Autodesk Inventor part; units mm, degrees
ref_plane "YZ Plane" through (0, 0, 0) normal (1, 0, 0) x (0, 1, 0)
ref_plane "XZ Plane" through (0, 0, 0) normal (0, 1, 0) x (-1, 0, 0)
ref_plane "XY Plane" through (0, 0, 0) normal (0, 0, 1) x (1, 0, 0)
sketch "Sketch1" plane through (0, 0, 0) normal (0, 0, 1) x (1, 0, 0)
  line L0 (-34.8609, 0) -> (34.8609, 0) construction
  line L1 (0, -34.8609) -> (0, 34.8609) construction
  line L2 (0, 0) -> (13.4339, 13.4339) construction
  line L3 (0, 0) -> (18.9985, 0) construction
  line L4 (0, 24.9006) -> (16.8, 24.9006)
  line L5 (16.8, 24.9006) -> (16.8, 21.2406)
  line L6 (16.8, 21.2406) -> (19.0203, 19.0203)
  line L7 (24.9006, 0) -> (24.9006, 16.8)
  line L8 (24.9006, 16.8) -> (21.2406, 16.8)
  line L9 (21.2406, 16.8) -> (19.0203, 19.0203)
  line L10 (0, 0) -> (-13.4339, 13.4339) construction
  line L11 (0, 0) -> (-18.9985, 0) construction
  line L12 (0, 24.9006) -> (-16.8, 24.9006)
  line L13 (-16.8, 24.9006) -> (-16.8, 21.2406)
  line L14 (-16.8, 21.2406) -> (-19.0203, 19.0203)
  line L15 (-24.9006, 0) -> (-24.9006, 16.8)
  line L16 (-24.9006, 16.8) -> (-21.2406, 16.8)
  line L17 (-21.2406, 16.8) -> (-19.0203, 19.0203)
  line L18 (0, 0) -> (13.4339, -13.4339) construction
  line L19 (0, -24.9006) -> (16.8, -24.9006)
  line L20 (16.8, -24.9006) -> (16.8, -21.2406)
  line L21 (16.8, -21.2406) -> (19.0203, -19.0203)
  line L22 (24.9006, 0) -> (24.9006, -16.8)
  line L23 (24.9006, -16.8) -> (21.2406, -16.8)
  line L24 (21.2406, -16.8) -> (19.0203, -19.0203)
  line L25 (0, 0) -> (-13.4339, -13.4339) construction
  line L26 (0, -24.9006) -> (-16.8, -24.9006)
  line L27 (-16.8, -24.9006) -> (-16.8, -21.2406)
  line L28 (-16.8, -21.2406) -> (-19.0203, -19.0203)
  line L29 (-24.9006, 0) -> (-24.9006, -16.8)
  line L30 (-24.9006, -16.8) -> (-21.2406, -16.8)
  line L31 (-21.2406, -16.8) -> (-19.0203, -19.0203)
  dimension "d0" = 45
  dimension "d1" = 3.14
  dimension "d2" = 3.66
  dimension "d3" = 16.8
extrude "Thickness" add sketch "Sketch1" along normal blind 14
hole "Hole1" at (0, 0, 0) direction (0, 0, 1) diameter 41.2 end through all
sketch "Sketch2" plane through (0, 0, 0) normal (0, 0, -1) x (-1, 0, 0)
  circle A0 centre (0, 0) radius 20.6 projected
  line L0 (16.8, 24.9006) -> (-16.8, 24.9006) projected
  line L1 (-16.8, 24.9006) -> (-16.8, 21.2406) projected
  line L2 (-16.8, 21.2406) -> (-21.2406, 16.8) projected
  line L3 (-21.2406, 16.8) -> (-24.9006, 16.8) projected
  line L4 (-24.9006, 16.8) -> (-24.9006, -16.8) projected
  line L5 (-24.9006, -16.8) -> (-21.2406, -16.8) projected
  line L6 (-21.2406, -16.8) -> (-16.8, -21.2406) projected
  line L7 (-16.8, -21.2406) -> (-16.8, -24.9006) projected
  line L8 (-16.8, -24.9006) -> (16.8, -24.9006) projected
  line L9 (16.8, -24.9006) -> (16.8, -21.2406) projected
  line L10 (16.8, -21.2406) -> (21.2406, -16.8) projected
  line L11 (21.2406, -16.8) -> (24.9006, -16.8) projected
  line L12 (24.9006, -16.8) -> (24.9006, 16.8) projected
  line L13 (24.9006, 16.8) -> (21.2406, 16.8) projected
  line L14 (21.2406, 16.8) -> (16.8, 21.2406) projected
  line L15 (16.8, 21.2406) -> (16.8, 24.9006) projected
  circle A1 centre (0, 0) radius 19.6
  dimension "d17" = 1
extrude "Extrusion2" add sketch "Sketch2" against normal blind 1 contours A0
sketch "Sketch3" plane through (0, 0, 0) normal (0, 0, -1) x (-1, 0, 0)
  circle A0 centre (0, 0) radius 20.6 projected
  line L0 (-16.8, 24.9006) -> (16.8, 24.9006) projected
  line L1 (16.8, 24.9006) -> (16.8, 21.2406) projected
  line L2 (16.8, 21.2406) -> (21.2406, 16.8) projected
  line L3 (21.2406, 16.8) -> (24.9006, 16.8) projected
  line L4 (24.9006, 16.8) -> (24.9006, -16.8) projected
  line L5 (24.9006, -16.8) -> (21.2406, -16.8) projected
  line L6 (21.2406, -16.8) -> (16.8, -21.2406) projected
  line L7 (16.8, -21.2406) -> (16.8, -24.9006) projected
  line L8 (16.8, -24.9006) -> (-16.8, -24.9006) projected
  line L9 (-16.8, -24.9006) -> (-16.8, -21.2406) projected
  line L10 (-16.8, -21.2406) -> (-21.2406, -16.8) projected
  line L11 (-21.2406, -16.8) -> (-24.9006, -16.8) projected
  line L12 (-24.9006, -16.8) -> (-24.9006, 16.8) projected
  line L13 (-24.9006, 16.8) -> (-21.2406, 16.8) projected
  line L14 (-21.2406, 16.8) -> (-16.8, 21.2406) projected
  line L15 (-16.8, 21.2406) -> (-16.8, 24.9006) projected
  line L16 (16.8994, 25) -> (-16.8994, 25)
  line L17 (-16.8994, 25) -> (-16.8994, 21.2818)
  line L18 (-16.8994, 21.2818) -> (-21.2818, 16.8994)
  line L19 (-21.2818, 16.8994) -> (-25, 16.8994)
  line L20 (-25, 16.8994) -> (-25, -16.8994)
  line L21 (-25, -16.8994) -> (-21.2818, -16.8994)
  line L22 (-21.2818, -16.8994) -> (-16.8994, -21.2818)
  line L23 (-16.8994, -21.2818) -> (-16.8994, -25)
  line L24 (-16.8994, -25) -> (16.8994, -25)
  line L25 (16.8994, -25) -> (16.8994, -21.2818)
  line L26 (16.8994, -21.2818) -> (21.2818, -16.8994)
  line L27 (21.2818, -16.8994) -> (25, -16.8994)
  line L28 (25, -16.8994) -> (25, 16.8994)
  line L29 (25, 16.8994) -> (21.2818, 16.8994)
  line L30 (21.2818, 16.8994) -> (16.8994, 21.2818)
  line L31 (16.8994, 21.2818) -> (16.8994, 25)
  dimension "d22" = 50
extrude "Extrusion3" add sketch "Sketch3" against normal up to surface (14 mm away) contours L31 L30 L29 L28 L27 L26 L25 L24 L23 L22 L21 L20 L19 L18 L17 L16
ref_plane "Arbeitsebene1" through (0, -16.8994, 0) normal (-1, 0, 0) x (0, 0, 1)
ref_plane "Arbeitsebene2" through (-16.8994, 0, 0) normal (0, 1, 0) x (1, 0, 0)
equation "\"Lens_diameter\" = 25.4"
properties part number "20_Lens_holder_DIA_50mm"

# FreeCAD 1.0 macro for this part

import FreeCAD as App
import Part
import Sketcher

doc = App.newDocument("Part")
params = doc.addObject("Spreadsheet::Sheet", "Params")
for row, (alias, value) in enumerate([
    ("sketch1_width", "3.66 mm"),
    ("sketch1_length", "6.28 mm"),
    ("pad1_length", "14 mm"),
    ("sketch2_diameter", "41.2 mm"),
    ("hole_diameter", "41.2 mm"),
    ("sketch3_diameter", "41.2 mm"),
    ("sketch3_diameter2", "39.2 mm"),
    ("pad2_length", "1 mm"),
    ("sketch4_width", "33.6 mm"),
    ("sketch4_width2", "3.66 mm"),
    ("sketch4_length", "6.28 mm"),
    ("pad3_length", "14 mm"),
], start=1):
    params.set(f"A{row}", alias)
    params.set(f"B{row}", "=" + value)
    params.setAlias(f"B{row}", alias)

body = doc.addObject("PartDesign::Body", "Body")

# Sketch on XY plane
sketch1 = body.newObject("Sketcher::SketchObject", "Sketch")
sketch1.AttachmentSupport = (doc.getObject("XY_Plane"), [""])
sketch1.MapMode = "FlatFace"
sketch1.addGeometry(Part.LineSegment(App.Vector(16.8, 24.9, 0), App.Vector(-16.8, 24.9, 0)), False)
sketch1.addGeometry(Part.LineSegment(App.Vector(-16.8, 24.9, 0), App.Vector(-16.8, 21.2, 0)), False)
sketch1.addGeometry(Part.LineSegment(App.Vector(-16.8, 21.2, 0), App.Vector(-21.2, 16.8, 0)), False)
sketch1.addGeometry(Part.LineSegment(App.Vector(-21.2, 16.8, 0), App.Vector(-24.9, 16.8, 0)), False)
sketch1.addGeometry(Part.LineSegment(App.Vector(-24.9, 16.8, 0), App.Vector(-24.9, -16.8, 0)), False)
sketch1.addGeometry(Part.LineSegment(App.Vector(-24.9, -16.8, 0), App.Vector(-21.2, -16.8, 0)), False)
sketch1.addGeometry(Part.LineSegment(App.Vector(-21.2, -16.8, 0), App.Vector(-16.8, -21.2, 0)), False)
sketch1.addGeometry(Part.LineSegment(App.Vector(-16.8, -21.2, 0), App.Vector(-16.8, -24.9, 0)), False)
sketch1.addGeometry(Part.LineSegment(App.Vector(-16.8, -24.9, 0), App.Vector(16.8, -24.9, 0)), False)
sketch1.addGeometry(Part.LineSegment(App.Vector(16.8, -24.9, 0), App.Vector(16.8, -21.2, 0)), False)
sketch1.addGeometry(Part.LineSegment(App.Vector(16.8, -21.2, 0), App.Vector(21.2, -16.8, 0)), False)
sketch1.addGeometry(Part.LineSegment(App.Vector(21.2, -16.8, 0), App.Vector(24.9, -16.8, 0)), False)
sketch1.addGeometry(Part.LineSegment(App.Vector(24.9, -16.8, 0), App.Vector(24.9, 16.8, 0)), False)
sketch1.addGeometry(Part.LineSegment(App.Vector(24.9, 16.8, 0), App.Vector(21.2, 16.8, 0)), False)
sketch1.addGeometry(Part.LineSegment(App.Vector(21.2, 16.8, 0), App.Vector(16.8, 21.2, 0)), False)
sketch1.addGeometry(Part.LineSegment(App.Vector(16.8, 21.2, 0), App.Vector(16.8, 24.9, 0)), False)
sketch1.addConstraint(Sketcher.Constraint("Coincident", 0, 2, 1, 1))
sketch1.addConstraint(Sketcher.Constraint("Coincident", 1, 2, 2, 1))
sketch1.addConstraint(Sketcher.Constraint("Coincident", 2, 2, 3, 1))
sketch1.addConstraint(Sketcher.Constraint("Coincident", 3, 2, 4, 1))
sketch1.addConstraint(Sketcher.Constraint("Coincident", 4, 2, 5, 1))
sketch1.addConstraint(Sketcher.Constraint("Coincident", 5, 2, 6, 1))
sketch1.addConstraint(Sketcher.Constraint("Coincident", 6, 2, 7, 1))
sketch1.addConstraint(Sketcher.Constraint("Coincident", 7, 2, 8, 1))
sketch1.addConstraint(Sketcher.Constraint("Coincident", 8, 2, 9, 1))
sketch1.addConstraint(Sketcher.Constraint("Coincident", 9, 2, 10, 1))
sketch1.addConstraint(Sketcher.Constraint("Coincident", 10, 2, 11, 1))
sketch1.addConstraint(Sketcher.Constraint("Coincident", 11, 2, 12, 1))
sketch1.addConstraint(Sketcher.Constraint("Coincident", 12, 2, 13, 1))
sketch1.addConstraint(Sketcher.Constraint("Coincident", 13, 2, 14, 1))
sketch1.addConstraint(Sketcher.Constraint("Coincident", 14, 2, 15, 1))
sketch1.addConstraint(Sketcher.Constraint("Coincident", 15, 2, 0, 1))
sketch1.addConstraint(Sketcher.Constraint("Horizontal", 0))
sketch1.addConstraint(Sketcher.Constraint("Vertical", 1))
sketch1.addConstraint(Sketcher.Constraint("Horizontal", 3))
sketch1.addConstraint(Sketcher.Constraint("Vertical", 4))
sketch1.addConstraint(Sketcher.Constraint("Horizontal", 5))
sketch1.addConstraint(Sketcher.Constraint("Vertical", 7))
sketch1.addConstraint(Sketcher.Constraint("Horizontal", 8))
sketch1.addConstraint(Sketcher.Constraint("Vertical", 9))
sketch1.addConstraint(Sketcher.Constraint("Horizontal", 11))
sketch1.addConstraint(Sketcher.Constraint("Vertical", 12))
sketch1.addConstraint(Sketcher.Constraint("Horizontal", 13))
sketch1.addConstraint(Sketcher.Constraint("Vertical", 15))
sketch1.addConstraint(Sketcher.Constraint("Symmetric", 0, 2, 8, 2, -1, 1))
sketch1.addConstraint(Sketcher.Constraint("Symmetric", 2, 2, 10, 2, -1, 1))
sketch1.addConstraint(Sketcher.Constraint("Symmetric", 4, 2, 12, 2, -1, 1))
sketch1.addConstraint(Sketcher.Constraint("Symmetric", 6, 2, 14, 2, -1, 1))
sketch1.addConstraint(Sketcher.Constraint("Symmetric", 6, 2, 9, 2, -2))
sketch1.addConstraint(Sketcher.Constraint("Symmetric", 5, 2, 10, 2, -2))
sketch1.addConstraint(Sketcher.Constraint("Perpendicular", 2, 6))
sketch1.addConstraint(Sketcher.Constraint("Perpendicular", 6, 10))
sketch1.addConstraint(Sketcher.Constraint("Perpendicular", 10, 14))
sketch1.addConstraint(Sketcher.Constraint("Equal", 13, 1))
sketch1.addConstraint(Sketcher.Constraint("Equal", 8, 4))
sketch1.addConstraint(Sketcher.Constraint("DistanceX", 3, 2, 3, 1, 3.66))
sketch1.addConstraint(Sketcher.Constraint("DistanceX", 0, 2, -1, 1, 16.8))
sketch1.addConstraint(Sketcher.Constraint("Distance", 2, 6.28))
sketch1.setExpression("Constraints[39]", "Params.sketch1_width")
sketch1.setExpression("Constraints[41]", "Params.sketch1_length")
pad1 = body.newObject("PartDesign::Pad", "Pad")
pad1.Profile = sketch1
pad1.setExpression("Length", "Params.pad1_length")

# Sketch on XY plane
sketch2 = body.newObject("Sketcher::SketchObject", "Sketch001")
sketch2.AttachmentSupport = (doc.getObject("XY_Plane"), [""])
sketch2.MapMode = "FlatFace"
sketch2.addGeometry(Part.Circle(App.Vector(0, 0, 0), App.Vector(0, 0, 1), 21), False)
sketch2.addConstraint(Sketcher.Constraint("Coincident", 0, 3, -1, 1))
sketch2.addConstraint(Sketcher.Constraint("Diameter", 0, 41.2))
sketch2.setExpression("Constraints[1]", "Params.sketch2_diameter")
doc.recompute()
hole = body.newObject("PartDesign::Hole", "Hole")
hole.Profile = sketch2
hole.ThreadType = "None"
hole.setExpression("Diameter", "Params.hole_diameter")
hole.DepthType = "ThroughAll"
hole.Reversed = True

# Sketch on XY plane
sketch3 = body.newObject("Sketcher::SketchObject", "Sketch002")
sketch3.AttachmentSupport = (doc.getObject("XY_Plane"), [""])
sketch3.MapMode = "FlatFace"
sketch3.addGeometry(Part.Circle(App.Vector(0, 0, 0), App.Vector(0, 0, 1), 21), False)
sketch3.addGeometry(Part.Circle(App.Vector(0, 0, 0), App.Vector(0, 0, 1), 20), False)
sketch3.addConstraint(Sketcher.Constraint("Coincident", 0, 3, -1, 1))
sketch3.addConstraint(Sketcher.Constraint("Coincident", 1, 3, -1, 1))
sketch3.addConstraint(Sketcher.Constraint("Diameter", 0, 41.2))
sketch3.addConstraint(Sketcher.Constraint("Diameter", 1, 39.2))
sketch3.setExpression("Constraints[2]", "Params.sketch3_diameter")
sketch3.setExpression("Constraints[3]", "Params.sketch3_diameter2")
pad2 = body.newObject("PartDesign::Pad", "Pad001")
pad2.Profile = sketch3
pad2.setExpression("Length", "Params.pad2_length")

# Sketch on XY plane
sketch4 = body.newObject("Sketcher::SketchObject", "Sketch003")
sketch4.AttachmentSupport = (doc.getObject("XY_Plane"), [""])
sketch4.MapMode = "FlatFace"
sketch4.addGeometry(Part.LineSegment(App.Vector(-16.9, 21.3, 0), App.Vector(-16.9, 25, 0)), False)
sketch4.addGeometry(Part.LineSegment(App.Vector(-16.9, 25, 0), App.Vector(16.9, 25, 0)), False)
sketch4.addGeometry(Part.LineSegment(App.Vector(16.9, 25, 0), App.Vector(16.9, 21.3, 0)), False)
sketch4.addGeometry(Part.LineSegment(App.Vector(16.9, 21.3, 0), App.Vector(21.3, 16.9, 0)), False)
sketch4.addGeometry(Part.LineSegment(App.Vector(21.3, 16.9, 0), App.Vector(25, 16.9, 0)), False)
sketch4.addGeometry(Part.LineSegment(App.Vector(25, 16.9, 0), App.Vector(25, -16.9, 0)), False)
sketch4.addGeometry(Part.LineSegment(App.Vector(25, -16.9, 0), App.Vector(21.3, -16.9, 0)), False)
sketch4.addGeometry(Part.LineSegment(App.Vector(21.3, -16.9, 0), App.Vector(16.9, -21.3, 0)), False)
sketch4.addGeometry(Part.LineSegment(App.Vector(16.9, -21.3, 0), App.Vector(16.9, -25, 0)), False)
sketch4.addGeometry(Part.LineSegment(App.Vector(16.9, -25, 0), App.Vector(-16.9, -25, 0)), False)
sketch4.addGeometry(Part.LineSegment(App.Vector(-16.9, -25, 0), App.Vector(-16.9, -21.3, 0)), False)
sketch4.addGeometry(Part.LineSegment(App.Vector(-16.9, -21.3, 0), App.Vector(-21.3, -16.9, 0)), False)
sketch4.addGeometry(Part.LineSegment(App.Vector(-21.3, -16.9, 0), App.Vector(-25, -16.9, 0)), False)
sketch4.addGeometry(Part.LineSegment(App.Vector(-25, -16.9, 0), App.Vector(-25, 16.9, 0)), False)
sketch4.addGeometry(Part.LineSegment(App.Vector(-25, 16.9, 0), App.Vector(-21.3, 16.9, 0)), False)
sketch4.addGeometry(Part.LineSegment(App.Vector(-21.3, 16.9, 0), App.Vector(-16.9, 21.3, 0)), False)
sketch4.addGeometry(Part.LineSegment(App.Vector(16.8, 21.2, 0), App.Vector(16.8, 24.9, 0)), False)
sketch4.addGeometry(Part.LineSegment(App.Vector(16.8, 24.9, 0), App.Vector(-16.8, 24.9, 0)), False)
sketch4.addGeometry(Part.LineSegment(App.Vector(-16.8, 24.9, 0), App.Vector(-16.8, 21.2, 0)), False)
sketch4.addGeometry(Part.LineSegment(App.Vector(-16.8, 21.2, 0), App.Vector(-21.2, 16.8, 0)), False)
sketch4.addGeometry(Part.LineSegment(App.Vector(-21.2, 16.8, 0), App.Vector(-24.9, 16.8, 0)), False)
sketch4.addGeometry(Part.LineSegment(App.Vector(-24.9, 16.8, 0), App.Vector(-24.9, -16.8, 0)), False)
sketch4.addGeometry(Part.LineSegment(App.Vector(-24.9, -16.8, 0), App.Vector(-21.2, -16.8, 0)), False)
sketch4.addGeometry(Part.LineSegment(App.Vector(-21.2, -16.8, 0), App.Vector(-16.8, -21.2, 0)), False)
sketch4.addGeometry(Part.LineSegment(App.Vector(-16.8, -21.2, 0), App.Vector(-16.8, -24.9, 0)), False)
sketch4.addGeometry(Part.LineSegment(App.Vector(-16.8, -24.9, 0), App.Vector(16.8, -24.9, 0)), False)
sketch4.addGeometry(Part.LineSegment(App.Vector(16.8, -24.9, 0), App.Vector(16.8, -21.2, 0)), False)
sketch4.addGeometry(Part.LineSegment(App.Vector(16.8, -21.2, 0), App.Vector(21.2, -16.8, 0)), False)
sketch4.addGeometry(Part.LineSegment(App.Vector(21.2, -16.8, 0), App.Vector(24.9, -16.8, 0)), False)
sketch4.addGeometry(Part.LineSegment(App.Vector(24.9, -16.8, 0), App.Vector(24.9, 16.8, 0)), False)
sketch4.addGeometry(Part.LineSegment(App.Vector(24.9, 16.8, 0), App.Vector(21.2, 16.8, 0)), False)
sketch4.addGeometry(Part.LineSegment(App.Vector(21.2, 16.8, 0), App.Vector(16.8, 21.2, 0)), False)
sketch4.addConstraint(Sketcher.Constraint("Coincident", 0, 2, 1, 1))
sketch4.addConstraint(Sketcher.Constraint("Coincident", 1, 2, 2, 1))
sketch4.addConstraint(Sketcher.Constraint("Coincident", 2, 2, 3, 1))
sketch4.addConstraint(Sketcher.Constraint("Coincident", 3, 2, 4, 1))
sketch4.addConstraint(Sketcher.Constraint("Coincident", 4, 2, 5, 1))
sketch4.addConstraint(Sketcher.Constraint("Coincident", 5, 2, 6, 1))
sketch4.addConstraint(Sketcher.Constraint("Coincident", 6, 2, 7, 1))
sketch4.addConstraint(Sketcher.Constraint("Coincident", 7, 2, 8, 1))
sketch4.addConstraint(Sketcher.Constraint("Coincident", 8, 2, 9, 1))
sketch4.addConstraint(Sketcher.Constraint("Coincident", 9, 2, 10, 1))
sketch4.addConstraint(Sketcher.Constraint("Coincident", 10, 2, 11, 1))
sketch4.addConstraint(Sketcher.Constraint("Coincident", 11, 2, 12, 1))
sketch4.addConstraint(Sketcher.Constraint("Coincident", 12, 2, 13, 1))
sketch4.addConstraint(Sketcher.Constraint("Coincident", 13, 2, 14, 1))
sketch4.addConstraint(Sketcher.Constraint("Coincident", 14, 2, 15, 1))
sketch4.addConstraint(Sketcher.Constraint("Coincident", 15, 2, 0, 1))
sketch4.addConstraint(Sketcher.Constraint("Coincident", 16, 2, 17, 1))
sketch4.addConstraint(Sketcher.Constraint("Coincident", 17, 2, 18, 1))
sketch4.addConstraint(Sketcher.Constraint("Coincident", 18, 2, 19, 1))
sketch4.addConstraint(Sketcher.Constraint("Coincident", 19, 2, 20, 1))
sketch4.addConstraint(Sketcher.Constraint("Coincident", 20, 2, 21, 1))
sketch4.addConstraint(Sketcher.Constraint("Coincident", 21, 2, 22, 1))
sketch4.addConstraint(Sketcher.Constraint("Coincident", 22, 2, 23, 1))
sketch4.addConstraint(Sketcher.Constraint("Coincident", 23, 2, 24, 1))
sketch4.addConstraint(Sketcher.Constraint("Coincident", 24, 2, 25, 1))
sketch4.addConstraint(Sketcher.Constraint("Coincident", 25, 2, 26, 1))
sketch4.addConstraint(Sketcher.Constraint("Coincident", 26, 2, 27, 1))
sketch4.addConstraint(Sketcher.Constraint("Coincident", 27, 2, 28, 1))
sketch4.addConstraint(Sketcher.Constraint("Coincident", 28, 2, 29, 1))
sketch4.addConstraint(Sketcher.Constraint("Coincident", 29, 2, 30, 1))
sketch4.addConstraint(Sketcher.Constraint("Coincident", 30, 2, 31, 1))
sketch4.addConstraint(Sketcher.Constraint("Coincident", 31, 2, 16, 1))
sketch4.addConstraint(Sketcher.Constraint("Vertical", 0))
sketch4.addConstraint(Sketcher.Constraint("Horizontal", 1))
sketch4.addConstraint(Sketcher.Constraint("Vertical", 2))
sketch4.addConstraint(Sketcher.Constraint("Horizontal", 4))
sketch4.addConstraint(Sketcher.Constraint("Vertical", 5))
sketch4.addConstraint(Sketcher.Constraint("Horizontal", 6))
sketch4.addConstraint(Sketcher.Constraint("Vertical", 8))
sketch4.addConstraint(Sketcher.Constraint("Horizontal", 9))
sketch4.addConstraint(Sketcher.Constraint("Vertical", 10))
sketch4.addConstraint(Sketcher.Constraint("Horizontal", 12))
sketch4.addConstraint(Sketcher.Constraint("Vertical", 13))
sketch4.addConstraint(Sketcher.Constraint("Horizontal", 14))
sketch4.addConstraint(Sketcher.Constraint("Vertical", 16))
sketch4.addConstraint(Sketcher.Constraint("Horizontal", 17))
sketch4.addConstraint(Sketcher.Constraint("Vertical", 18))
sketch4.addConstraint(Sketcher.Constraint("Horizontal", 20))
sketch4.addConstraint(Sketcher.Constraint("Vertical", 21))
sketch4.addConstraint(Sketcher.Constraint("Horizontal", 22))
sketch4.addConstraint(Sketcher.Constraint("Vertical", 24))
sketch4.addConstraint(Sketcher.Constraint("Horizontal", 25))
sketch4.addConstraint(Sketcher.Constraint("Vertical", 26))
sketch4.addConstraint(Sketcher.Constraint("Horizontal", 28))
sketch4.addConstraint(Sketcher.Constraint("Vertical", 29))
sketch4.addConstraint(Sketcher.Constraint("Horizontal", 30))
sketch4.addConstraint(Sketcher.Constraint("Symmetric", 0, 2, 8, 2, -1, 1))
sketch4.addConstraint(Sketcher.Constraint("Symmetric", 2, 2, 10, 2, -1, 1))
sketch4.addConstraint(Sketcher.Constraint("Symmetric", 3, 2, 11, 2, -1, 1))
sketch4.addConstraint(Sketcher.Constraint("Symmetric", 5, 2, 13, 2, -1, 1))
sketch4.addConstraint(Sketcher.Constraint("Symmetric", 16, 2, 24, 2, -1, 1))
sketch4.addConstraint(Sketcher.Constraint("Symmetric", 18, 2, 26, 2, -1, 1))
sketch4.addConstraint(Sketcher.Constraint("Symmetric", 19, 2, 27, 2, -1, 1))
sketch4.addConstraint(Sketcher.Constraint("Symmetric", 21, 2, 29, 2, -1, 1))
sketch4.addConstraint(Sketcher.Constraint("Symmetric", 7, 2, 10, 2, -2))
sketch4.addConstraint(Sketcher.Constraint("Symmetric", 6, 2, 11, 2, -2))
sketch4.addConstraint(Sketcher.Constraint("Symmetric", 23, 2, 26, 2, -2))
sketch4.addConstraint(Sketcher.Constraint("Symmetric", 22, 2, 27, 2, -2))
sketch4.addConstraint(Sketcher.Constraint("Perpendicular", 3, 7))
sketch4.addConstraint(Sketcher.Constraint("Perpendicular", 11, 15))
sketch4.addConstraint(Sketcher.Constraint("Parallel", 15, 19))
sketch4.addConstraint(Sketcher.Constraint("Perpendicular", 27, 31))
sketch4.addConstraint(Sketcher.Constraint("Horizontal", 2, 2, 15, 2))
sketch4.addConstraint(Sketcher.Constraint("Horizontal", 18, 2, 31, 2))
sketch4.addConstraint(Sketcher.Constraint("Equal", 14, 0))
sketch4.addConstraint(Sketcher.Constraint("Equal", 9, 5))
sketch4.addConstraint(Sketcher.Constraint("Equal", 30, 16))
sketch4.addConstraint(Sketcher.Constraint("Equal", 25, 21))
sketch4.addConstraint(Sketcher.Constraint("DistanceY", 9, 2, 0, 2, 50.0))
sketch4.addConstraint(Sketcher.Constraint("DistanceX", 17, 2, 17, 1, 33.6))
sketch4.addConstraint(Sketcher.Constraint("DistanceX", 20, 2, 20, 1, 3.66))
sketch4.addConstraint(Sketcher.Constraint("Distance", 19, 6.28))
sketch4.addConstraint(Sketcher.Constraint("DistanceX", 1, 1, 1, 2, 33.7988))
sketch4.addConstraint(Sketcher.Constraint("DistanceX", 4, 1, 4, 2, 3.7182))
sketch4.setExpression("Constraints[79]", "Params.sketch4_width")
sketch4.setExpression("Constraints[80]", "Params.sketch4_width2")
sketch4.setExpression("Constraints[81]", "Params.sketch4_length")
pad3 = body.newObject("PartDesign::Pad", "Pad002")
pad3.Profile = sketch4
pad3.setExpression("Length", "Params.pad3_length")

doc.recompute()
